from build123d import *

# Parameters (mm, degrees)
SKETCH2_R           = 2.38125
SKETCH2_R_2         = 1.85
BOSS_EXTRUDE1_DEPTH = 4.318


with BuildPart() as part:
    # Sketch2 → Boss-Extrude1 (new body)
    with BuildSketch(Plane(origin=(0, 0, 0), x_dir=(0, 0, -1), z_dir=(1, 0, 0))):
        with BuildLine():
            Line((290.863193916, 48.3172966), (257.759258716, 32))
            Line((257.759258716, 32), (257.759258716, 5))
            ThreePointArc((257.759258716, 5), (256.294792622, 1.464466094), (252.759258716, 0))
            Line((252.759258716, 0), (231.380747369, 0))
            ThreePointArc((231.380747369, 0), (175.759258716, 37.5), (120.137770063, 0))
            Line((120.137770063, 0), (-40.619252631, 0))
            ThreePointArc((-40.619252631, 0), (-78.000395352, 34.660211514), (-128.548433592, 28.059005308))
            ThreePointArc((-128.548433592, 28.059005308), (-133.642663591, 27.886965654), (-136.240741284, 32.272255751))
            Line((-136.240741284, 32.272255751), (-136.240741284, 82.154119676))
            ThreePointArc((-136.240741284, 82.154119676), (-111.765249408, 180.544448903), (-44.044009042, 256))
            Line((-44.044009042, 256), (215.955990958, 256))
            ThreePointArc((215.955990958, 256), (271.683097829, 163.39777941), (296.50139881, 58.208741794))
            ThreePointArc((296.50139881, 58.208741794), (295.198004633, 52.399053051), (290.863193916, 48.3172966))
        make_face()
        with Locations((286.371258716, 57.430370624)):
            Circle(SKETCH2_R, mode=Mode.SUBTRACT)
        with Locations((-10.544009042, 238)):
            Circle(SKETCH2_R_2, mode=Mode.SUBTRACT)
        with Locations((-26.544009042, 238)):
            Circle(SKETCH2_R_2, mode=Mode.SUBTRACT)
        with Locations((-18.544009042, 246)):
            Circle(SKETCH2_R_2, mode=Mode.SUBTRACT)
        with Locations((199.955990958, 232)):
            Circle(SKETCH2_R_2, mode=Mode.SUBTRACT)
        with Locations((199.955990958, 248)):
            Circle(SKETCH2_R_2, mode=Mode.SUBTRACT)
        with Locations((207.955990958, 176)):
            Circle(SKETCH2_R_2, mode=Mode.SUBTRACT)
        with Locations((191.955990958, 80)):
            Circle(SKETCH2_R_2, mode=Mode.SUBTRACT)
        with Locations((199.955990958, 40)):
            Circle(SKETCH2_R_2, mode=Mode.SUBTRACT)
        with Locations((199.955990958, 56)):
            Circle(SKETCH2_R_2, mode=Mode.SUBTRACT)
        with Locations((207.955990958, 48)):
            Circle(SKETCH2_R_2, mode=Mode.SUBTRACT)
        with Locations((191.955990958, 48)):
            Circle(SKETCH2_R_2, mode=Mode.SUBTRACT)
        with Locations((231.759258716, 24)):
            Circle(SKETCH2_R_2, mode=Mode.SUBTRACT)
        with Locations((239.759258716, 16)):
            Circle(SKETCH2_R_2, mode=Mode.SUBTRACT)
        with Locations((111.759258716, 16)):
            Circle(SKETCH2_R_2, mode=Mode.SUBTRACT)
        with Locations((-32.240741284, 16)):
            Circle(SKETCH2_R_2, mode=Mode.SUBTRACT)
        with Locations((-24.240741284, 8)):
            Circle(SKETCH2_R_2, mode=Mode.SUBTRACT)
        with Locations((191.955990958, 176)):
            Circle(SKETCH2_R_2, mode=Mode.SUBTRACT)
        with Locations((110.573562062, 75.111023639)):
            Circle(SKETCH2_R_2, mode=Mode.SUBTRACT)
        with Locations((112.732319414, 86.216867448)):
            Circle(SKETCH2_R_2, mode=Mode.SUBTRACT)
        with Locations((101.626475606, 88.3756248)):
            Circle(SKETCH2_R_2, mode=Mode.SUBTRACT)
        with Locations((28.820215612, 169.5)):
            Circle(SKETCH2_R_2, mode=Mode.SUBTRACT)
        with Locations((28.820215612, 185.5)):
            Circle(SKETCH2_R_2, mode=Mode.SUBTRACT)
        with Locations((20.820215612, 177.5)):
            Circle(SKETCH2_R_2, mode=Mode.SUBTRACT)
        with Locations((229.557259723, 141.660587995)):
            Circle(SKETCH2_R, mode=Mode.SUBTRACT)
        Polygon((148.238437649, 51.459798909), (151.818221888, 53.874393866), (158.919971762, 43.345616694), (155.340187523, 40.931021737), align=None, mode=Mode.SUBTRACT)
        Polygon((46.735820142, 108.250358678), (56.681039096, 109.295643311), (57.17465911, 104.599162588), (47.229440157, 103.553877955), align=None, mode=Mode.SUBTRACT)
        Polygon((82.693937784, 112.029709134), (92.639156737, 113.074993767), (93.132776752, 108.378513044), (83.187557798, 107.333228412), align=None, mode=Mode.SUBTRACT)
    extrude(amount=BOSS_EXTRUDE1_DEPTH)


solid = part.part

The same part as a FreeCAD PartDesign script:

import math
import FreeCAD as App
import Part
import Sketcher

V = App.Vector
Q = App.Units.Quantity

doc = App.newDocument("Part")
params = doc.addObject("Spreadsheet::Sheet", "Params")
for row, (alias, value) in enumerate([
    ("sketch1_radius", "350 mm"),
    ("sketch1_radius2", "210 mm"),
    ("sketch1_radius3", "5 mm"),
    ("sketch1_radius4", "60 mm"),
    ("sketch1_diameter", "3.7 mm"),
    ("pad1_length", "4.318 mm"),
], start=1):
    params.set(f"A{row}", alias)
    params.set(f"B{row}", "=" + value)
    params.setAlias(f"B{row}", alias)

body = doc.addObject("PartDesign::Body", "Body")

# Sketch on YZ plane
sketch1 = body.newObject("Sketcher::SketchObject", "Sketch")
sketch1.AttachmentSupport = (doc.getObject("YZ_Plane"), [""])
sketch1.MapMode = "FlatFace"
sketch1.addGeometry(Part.LineSegment(V(32, -257.759259, 0), V(48.317297, -290.863194, 0)), False)
sketch1.addGeometry(Part.ArcOfCircle(Part.Circle(V(57.430371, -286.371259, 0), V(0, 0, 1), 10.16), math.radians(-153.760801), math.radians(-85.606189)), False)
sketch1.addGeometry(Part.ArcOfCircle(Part.Circle(V(31.394774, 52.469963, 0), V(0, 0, 1), 350), math.radians(-85.606189), math.radians(-50.079116)), False)
sketch1.addGeometry(Part.LineSegment(V(256, -215.955991, 0), V(256, 44.044009, 0)), False)
sketch1.addGeometry(Part.ArcOfCircle(Part.Circle(V(82.15412, -73.759259, 0), V(0, 0, 1), 210), math.radians(34.122764), math.radians(90)), False)
sketch1.addGeometry(Part.LineSegment(V(82.15412, 136.240741, 0), V(32.272256, 136.240741, 0)), False)
sketch1.addGeometry(Part.ArcOfCircle(Part.Circle(V(32.272256, 131.240741, 0), V(0, 0, 1), 5), math.radians(90), math.radians(212.57897)), False)
sketch1.addGeometry(Part.ArcOfCircle(Part.Circle(V(-22.5, 96.240741, 0), V(0, 0, 1), 60), math.radians(-67.975687), math.radians(32.57897)), False)
sketch1.addGeometry(Part.LineSegment(V(0, 40.619253, 0), V(0, -120.13777, 0)), False)
sketch1.addGeometry(Part.ArcOfCircle(Part.Circle(V(-22.5, -175.759259, 0), V(0, 0, 1), 60), math.radians(-67.975687), math.radians(67.975687)), False)
sketch1.addGeometry(Part.LineSegment(V(0, -231.380747, 0), V(0, -252.759259, 0)), False)
sketch1.addGeometry(Part.ArcOfCircle(Part.Circle(V(5, -252.759259, 0), V(0, 0, 1), 5), math.radians(180), math.radians(270)), False)
sketch1.addGeometry(Part.LineSegment(V(5, -257.759259, 0), V(32, -257.759259, 0)), False)
sketch1.addGeometry(Part.Circle(V(16, -239.759259, 0), V(0, 0, 1), 1.85), False)
sketch1.addGeometry(Part.Circle(V(24, -231.759259, 0), V(0, 0, 1), 1.85), False)
sketch1.addGeometry(Part.Circle(V(57.430371, -286.371259, 0), V(0, 0, 1), 2.38125), False)
sketch1.addGeometry(Part.Circle(V(40, -199.955991, 0), V(0, 0, 1), 1.85), False)
sketch1.addGeometry(Part.Circle(V(48, -207.955991, 0), V(0, 0, 1), 1.85), False)
sketch1.addGeometry(Part.Circle(V(48, -191.955991, 0), V(0, 0, 1), 1.85), False)
sketch1.addGeometry(Part.Circle(V(56, -199.955991, 0), V(0, 0, 1), 1.85), False)
sketch1.addGeometry(Part.LineSegment(V(51.459799, -148.238438, 0), V(53.874394, -151.818222, 0)), False)
sketch1.addGeometry(Part.LineSegment(V(53.874394, -151.818222, 0), V(43.345617, -158.919972, 0)), False)
sketch1.addGeometry(Part.LineSegment(V(43.345617, -158.919972, 0), V(40.931022, -155.340188, 0)), False)
sketch1.addGeometry(Part.LineSegment(V(40.931022, -155.340188, 0), V(51.459799, -148.238438, 0)), False)
sketch1.addGeometry(Part.Circle(V(80, -191.955991, 0), V(0, 0, 1), 1.85), False)
sketch1.addGeometry(Part.Circle(V(16, -111.759259, 0), V(0, 0, 1), 1.85), False)
sketch1.addGeometry(Part.Circle(V(8, 24.240741, 0), V(0, 0, 1), 1.85), False)
sketch1.addGeometry(Part.Circle(V(16, 32.240741, 0), V(0, 0, 1), 1.85), False)
sketch1.addGeometry(Part.Circle(V(75.111024, -110.573562, 0), V(0, 0, 1), 1.85), False)
sketch1.addGeometry(Part.Circle(V(86.216867, -112.732319, 0), V(0, 0, 1), 1.85), False)
sketch1.addGeometry(Part.Circle(V(88.375625, -101.626476, 0), V(0, 0, 1), 1.85), False)
sketch1.addGeometry(Part.LineSegment(V(112.029709, -82.693938, 0), V(113.074994, -92.639157, 0)), False)
sketch1.addGeometry(Part.LineSegment(V(113.074994, -92.639157, 0), V(108.378513, -93.132777, 0)), False)
sketch1.addGeometry(Part.LineSegment(V(108.378513, -93.132777, 0), V(107.333228, -83.187558, 0)), False)
sketch1.addGeometry(Part.LineSegment(V(107.333228, -83.187558, 0), V(112.029709, -82.693938, 0)), False)
sketch1.addGeometry(Part.LineSegment(V(108.250359, -46.73582, 0), V(109.295643, -56.681039, 0)), False)
sketch1.addGeometry(Part.LineSegment(V(109.295643, -56.681039, 0), V(104.599163, -57.174659, 0)), False)
sketch1.addGeometry(Part.LineSegment(V(104.599163, -57.174659, 0), V(103.553878, -47.22944, 0)), False)
sketch1.addGeometry(Part.LineSegment(V(103.553878, -47.22944, 0), V(108.250359, -46.73582, 0)), False)
sketch1.addGeometry(Part.Circle(V(141.660588, -229.55726, 0), V(0, 0, 1), 2.38125), False)
sketch1.addGeometry(Part.Circle(V(176, -207.955991, 0), V(0, 0, 1), 1.85), False)
sketch1.addGeometry(Part.Circle(V(176, -191.955991, 0), V(0, 0, 1), 1.85), False)
sketch1.addGeometry(Part.Circle(V(232, -199.955991, 0), V(0, 0, 1), 1.85), False)
sketch1.addGeometry(Part.Circle(V(248, -199.955991, 0), V(0, 0, 1), 1.85), False)
sketch1.addGeometry(Part.Circle(V(169.5, -28.820216, 0), V(0, 0, 1), 1.85), False)
sketch1.addGeometry(Part.Circle(V(185.5, -28.820216, 0), V(0, 0, 1), 1.85), False)
sketch1.addGeometry(Part.Circle(V(177.5, -20.820216, 0), V(0, 0, 1), 1.85), False)
sketch1.addGeometry(Part.Circle(V(238, 10.544009, 0), V(0, 0, 1), 1.85), False)
sketch1.addGeometry(Part.Circle(V(238, 26.544009, 0), V(0, 0, 1), 1.85), False)
sketch1.addGeometry(Part.Circle(V(246, 18.544009, 0), V(0, 0, 1), 1.85), False)
sketch1.addConstraint(Sketcher.Constraint("Tangent", 0, 2, 1, 1))
sketch1.addConstraint(Sketcher.Constraint("Tangent", 1, 2, 2, 1))
sketch1.addConstraint(Sketcher.Constraint("Coincident", 2, 2, 3, 1))
sketch1.addConstraint(Sketcher.Constraint("Coincident", 3, 2, 4, 1))
sketch1.addConstraint(Sketcher.Constraint("Tangent", 4, 2, 5, 1))
sketch1.addConstraint(Sketcher.Constraint("Tangent", 5, 2, 6, 1))
sketch1.addConstraint(Sketcher.Constraint("Tangent", 6, 2, 7, 2))
sketch1.addConstraint(Sketcher.Constraint("Coincident", 7, 1, 8, 1))
sketch1.addConstraint(Sketcher.Constraint("Coincident", 8, 2, 9, 2))
sketch1.addConstraint(Sketcher.Constraint("Coincident", 9, 1, 10, 1))
sketch1.addConstraint(Sketcher.Constraint("Tangent", 10, 2, 11, 1))
sketch1.addConstraint(Sketcher.Constraint("Tangent", 11, 2, 12, 1))
sketch1.addConstraint(Sketcher.Constraint("Coincident", 12, 2, 0, 1))
sketch1.addConstraint(Sketcher.Constraint("Coincident", 20, 2, 21, 1))
sketch1.addConstraint(Sketcher.Constraint("Coincident", 21, 2, 22, 1))
sketch1.addConstraint(Sketcher.Constraint("Coincident", 22, 2, 23, 1))
sketch1.addConstraint(Sketcher.Constraint("Coincident", 23, 2, 20, 1))
sketch1.addConstraint(Sketcher.Constraint("Coincident", 31, 2, 32, 1))
sketch1.addConstraint(Sketcher.Constraint("Coincident", 32, 2, 33, 1))
sketch1.addConstraint(Sketcher.Constraint("Coincident", 33, 2, 34, 1))
sketch1.addConstraint(Sketcher.Constraint("Coincident", 34, 2, 31, 1))
sketch1.addConstraint(Sketcher.Constraint("Coincident", 35, 2, 36, 1))
sketch1.addConstraint(Sketcher.Constraint("Coincident", 36, 2, 37, 1))
sketch1.addConstraint(Sketcher.Constraint("Coincident", 37, 2, 38, 1))
sketch1.addConstraint(Sketcher.Constraint("Coincident", 38, 2, 35, 1))
sketch1.addConstraint(Sketcher.Constraint("Vertical", 3))
sketch1.addConstraint(Sketcher.Constraint("Horizontal", 5))
sketch1.addConstraint(Sketcher.Constraint("Vertical", 8))
sketch1.addConstraint(Sketcher.Constraint("Vertical", 10))
sketch1.addConstraint(Sketcher.Constraint("Horizontal", 12))
sketch1.addConstraint(Sketcher.Constraint("Coincident", 15, 3, 1, 3))
sketch1.addConstraint(Sketcher.Constraint("Equal", 7, 9))
sketch1.addConstraint(Sketcher.Constraint("Equal", 6, 11))
sketch1.addConstraint(Sketcher.Constraint("Equal", 13, 14))
sketch1.addConstraint(Sketcher.Constraint("Equal", 14, 16))
sketch1.addConstraint(Sketcher.Constraint("Equal", 16, 17))
sketch1.addConstraint(Sketcher.Constraint("Equal", 17, 18))
sketch1.addConstraint(Sketcher.Constraint("Equal", 18, 19))
sketch1.addConstraint(Sketcher.Constraint("Equal", 19, 24))
sketch1.addConstraint(Sketcher.Constraint("Equal", 24, 25))
sketch1.addConstraint(Sketcher.Constraint("Equal", 25, 26))
sketch1.addConstraint(Sketcher.Constraint("Equal", 26, 27))
sketch1.addConstraint(Sketcher.Constraint("Equal", 27, 28))
sketch1.addConstraint(Sketcher.Constraint("Equal", 28, 29))
sketch1.addConstraint(Sketcher.Constraint("Equal", 29, 30))
sketch1.addConstraint(Sketcher.Constraint("Equal", 15, 39))
sketch1.addConstraint(Sketcher.Constraint("Equal", 30, 40))
sketch1.addConstraint(Sketcher.Constraint("Equal", 40, 41))
sketch1.addConstraint(Sketcher.Constraint("Equal", 41, 42))
sketch1.addConstraint(Sketcher.Constraint("Equal", 42, 43))
sketch1.addConstraint(Sketcher.Constraint("Equal", 43, 44))
sketch1.addConstraint(Sketcher.Constraint("Equal", 44, 45))
sketch1.addConstraint(Sketcher.Constraint("Equal", 45, 46))
sketch1.addConstraint(Sketcher.Constraint("Equal", 46, 47))
sketch1.addConstraint(Sketcher.Constraint("Equal", 47, 48))
sketch1.addConstraint(Sketcher.Constraint("Equal", 48, 49))
sketch1.addConstraint(Sketcher.Constraint("PointOnObject", 7, 1, -2))
sketch1.addConstraint(Sketcher.Constraint("PointOnObject", 9, 1, -2))
sketch1.addConstraint(Sketcher.Constraint("Perpendicular", 20, 21))
sketch1.addConstraint(Sketcher.Constraint("Perpendicular", 21, 22))
sketch1.addConstraint(Sketcher.Constraint("Perpendicular", 22, 23))
sketch1.addConstraint(Sketcher.Constraint("Perpendicular", 31, 32))
sketch1.addConstraint(Sketcher.Constraint("Perpendicular", 32, 33))
sketch1.addConstraint(Sketcher.Constraint("Perpendicular", 33, 34))
sketch1.addConstraint(Sketcher.Constraint("Perpendicular", 34, 35))
sketch1.addConstraint(Sketcher.Constraint("Perpendicular", 35, 36))
sketch1.addConstraint(Sketcher.Constraint("Perpendicular", 36, 37))
sketch1.addConstraint(Sketcher.Constraint("Perpendicular", 37, 38))
sketch1.addConstraint(Sketcher.Constraint("Horizontal", 16, 3, 19, 3))
sketch1.addConstraint(Sketcher.Constraint("Horizontal", 18, 3, 24, 3))
sketch1.addConstraint(Sketcher.Constraint("Horizontal", 17, 3, 40, 3))
sketch1.addConstraint(Sketcher.Constraint("Horizontal", 24, 3, 41, 3))
sketch1.addConstraint(Sketcher.Constraint("Horizontal", 19, 3, 42, 3))
sketch1.addConstraint(Sketcher.Constraint("Horizontal", 42, 3, 43, 3))
sketch1.addConstraint(Sketcher.Constraint("Horizontal", 44, 3, 45, 3))
sketch1.addConstraint(Sketcher.Constraint("Vertical", 7, 3, 9, 3))
sketch1.addConstraint(Sketcher.Constraint("Vertical", 17, 3, 18, 3))
sketch1.addConstraint(Sketcher.Constraint("Vertical", 13, 3, 25, 3))
sketch1.addConstraint(Sketcher.Constraint("Vertical", 25, 3, 27, 3))
sketch1.addConstraint(Sketcher.Constraint("Vertical", 40, 3, 41, 3))
sketch1.addConstraint(Sketcher.Constraint("Vertical", 47, 3, 48, 3))
sketch1.addConstraint(Sketcher.Constraint("Equal", 33, 35))
sketch1.addConstraint(Sketcher.Constraint("Equal", 34, 36))
sketch1.addConstraint(Sketcher.Constraint("Radius", 2, Q("350 mm")))
sketch1.addConstraint(Sketcher.Constraint("Radius", 4, Q("210 mm")))
sketch1.addConstraint(Sketcher.Constraint("Radius", 6, Q("5 mm")))
sketch1.addConstraint(Sketcher.Constraint("Radius", 7, Q("60 mm")))
sketch1.addConstraint(Sketcher.Constraint("Diameter", 13, Q("3.7 mm")))
sketch1.addConstraint(Sketcher.Constraint("DistanceX", 12, 1, 12, 2, Q("27 mm")))
sketch1.addConstraint(Sketcher.Constraint("DistanceY", 3, 1, 3, 2, Q("260 mm")))
sketch1.addConstraint(Sketcher.Constraint("Angle", 20, Q("-56 deg")))
sketch1.addConstraint(Sketcher.Constraint("Angle", 31, Q("-84 deg")))
sketch1.addConstraint(Sketcher.Constraint("Radius", 1, Q("10.16 mm")))
sketch1.addConstraint(Sketcher.Constraint("Distance", 31, Q("10 mm")))
sketch1.addConstraint(Sketcher.Constraint("DistanceX", -1, 1, 13, 3, Q("16 mm")))
sketch1.addConstraint(Sketcher.Constraint("DistanceX", -1, 1, 14, 3, Q("24 mm")))
sketch1.addConstraint(Sketcher.Constraint("DistanceX", -1, 1, 16, 3, Q("40 mm")))
sketch1.addConstraint(Sketcher.Constraint("DistanceX", -1, 1, 17, 3, Q("48 mm")))
sketch1.addConstraint(Sketcher.Constraint("DistanceX", -1, 1, 19, 3, Q("56 mm")))
sketch1.addConstraint(Sketcher.Constraint("DistanceX", -1, 1, 24, 3, Q("80 mm")))
sketch1.addConstraint(Sketcher.Constraint("DistanceX", -1, 1, 26, 3, Q("8 mm")))
sketch1.addConstraint(Sketcher.Constraint("DistanceX", -1, 1, 40, 3, Q("176 mm")))
sketch1.addConstraint(Sketcher.Constraint("DistanceX", -1, 1, 42, 3, Q("232 mm")))
sketch1.addConstraint(Sketcher.Constraint("DistanceX", -1, 1, 43, 3, Q("248 mm")))
sketch1.addConstraint(Sketcher.Constraint("DistanceX", -1, 1, 47, 3, Q("238 mm")))
sketch1.addConstraint(Sketcher.Constraint("DistanceX", -1, 1, 49, 3, Q("246 mm")))
sketch1.addConstraint(Sketcher.Constraint("DistanceX", -1, 1, 3, 2, Q("256 mm")))
sketch1.addConstraint(Sketcher.Constraint("DistanceY", 7, 3, 6, 3, Q("35 mm")))
sketch1.addConstraint(Sketcher.Constraint("DistanceY", 9, 3, 4, 3, Q("102 mm")))
sketch1.addConstraint(Sketcher.Constraint("DistanceY", 11, 3, 9, 3, Q("77 mm")))
sketch1.addConstraint(Sketcher.Constraint("DistanceY", 11, 3, 13, 3, Q("13 mm")))
sketch1.addConstraint(Sketcher.Constraint("DistanceY", 13, 3, 14, 3, Q("8 mm")))
sketch1.addConstraint(Sketcher.Constraint("DistanceY", 17, 3, 16, 3, Q("8 mm")))
sketch1.addConstraint(Sketcher.Constraint("DistanceY", 16, 3, 18, 3, Q("8 mm")))
sketch1.addConstraint(Sketcher.Constraint("DistanceY", 9, 3, 25, 3, Q("64 mm")))
sketch1.addConstraint(Sketcher.Constraint("DistanceY", 26, 3, 7, 3, Q("72 mm")))
sketch1.addConstraint(Sketcher.Constraint("DistanceY", 26, 3, 27, 3, Q("8 mm")))
sketch1.addConstraint(Sketcher.Constraint("DistanceX", 44, 3, 45, 3, Q("16 mm")))
sketch1.addConstraint(Sketcher.Constraint("DistanceX", 44, 3, 46, 3, Q("8 mm")))
sketch1.addConstraint(Sketcher.Constraint("DistanceY", 44, 3, 46, 3, Q("8 mm")))
sketch1.addConstraint(Sketcher.Constraint("DistanceY", 47, 3, 48, 3, Q("16 mm")))
sketch1.addConstraint(Sketcher.Constraint("DistanceY", 47, 3, 49, 3, Q("8 mm")))
sketch1.addConstraint(Sketcher.Constraint("DistanceY", 2, 2, 43, 3, Q("16 mm")))
sketch1.addConstraint(Sketcher.Constraint("Distance", 21, Q("12.7 mm")))
sketch1.addConstraint(Sketcher.Constraint("Diameter", 15, Q("4.7625 mm")))
sketch1.addConstraint(Sketcher.Constraint("DistanceX", 7, 3, -1, 1, Q("22.5 mm")))
sketch1.addConstraint(Sketcher.Constraint("DistanceX", -1, 1, 44, 3, Q("169.5 mm")))
sketch1.addConstraint(Sketcher.Constraint("DistanceY", 48, 3, 3, 2, Q("17.5 mm")))
sketch1.addConstraint(Sketcher.Constraint("Distance", 20, Q("4.318 mm")))
sketch1.addConstraint(Sketcher.Constraint("DistanceY", 1, 3, 4, 3, Q("212.612 mm")))
sketch1.addConstraint(Sketcher.Constraint("DistanceY", 1, 3, 39, 3, Q("56.813999 mm")))
sketch1.addConstraint(Sketcher.Constraint("DistanceY", 1, 2, -1, 1, Q("296.501399 mm")))
sketch1.addConstraint(Sketcher.Constraint("DistanceX", -1, 1, 23, 2, Q("51.459799 mm")))
sketch1.addConstraint(Sketcher.Constraint("DistanceX", 28, 3, 30, 3, Q("13.264601 mm")))
sketch1.addConstraint(Sketcher.Constraint("DistanceY", 31, 2, 4, 3, Q("18.879898 mm")))
sketch1.addConstraint(Sketcher.Constraint("DistanceY", 30, 3, 32, 2, Q("8.493699 mm")))
sketch1.addConstraint(Sketcher.Constraint("DistanceY", 31, 2, 33, 2, Q("9.451599 mm")))
sketch1.addConstraint(Sketcher.Constraint("DistanceY", 34, 2, 35, 2, Q("26.012899 mm")))
sketch1.addConstraint(Sketcher.Constraint("DistanceX", 5, 2, 5, 1, Q("49.881864 mm")))
sketch1.addConstraint(Sketcher.Constraint("DistanceX", -1, 1, 1, 3, Q("57.430371 mm")))
sketch1.addConstraint(Sketcher.Constraint("DistanceY", 29, 3, -1, 1, Q("112.732319 mm")))
sketch1.addConstraint(Sketcher.Constraint("DistanceY", 20, 2, -1, 1, Q("151.818222 mm")))
sketch1.addConstraint(Sketcher.Constraint("DistanceX", -1, 1, 33, 2, Q("107.333228 mm")))
sketch1.addConstraint(Sketcher.Constraint("DistanceX", -1, 1, 38, 2, Q("108.250359 mm")))
sketch1.addConstraint(Sketcher.Constraint("DistanceY", 24, 3, 28, 3, Q("81.382429 mm")))
sketch1.addConstraint(Sketcher.Constraint("DistanceY", 30, 3, 44, 3, Q("72.80626 mm")))
sketch1.addConstraint(Sketcher.Constraint("DistanceX", 20, 2, 28, 3, Q("21.23663 mm")))
sketch1.addConstraint(Sketcher.Constraint("DistanceX", 29, 3, 33, 2, Q("21.116361 mm")))
sketch1.addConstraint(Sketcher.Constraint("DistanceX", -1, 1, 39, 3, Q("141.660588 mm")))
sketch1.setExpression("Constraints[83]", "Params.sketch1_radius")
sketch1.setExpression("Constraints[84]", "Params.sketch1_radius2")
sketch1.setExpression("Constraints[85]", "Params.sketch1_radius3")
sketch1.setExpression("Constraints[86]", "Params.sketch1_radius4")
sketch1.setExpression("Constraints[87]", "Params.sketch1_diameter")
pad1 = body.newObject("PartDesign::Pad", "Pad")
pad1.Profile = sketch1
pad1.setExpression("Length", "Params.pad1_length")

doc.recompute()
